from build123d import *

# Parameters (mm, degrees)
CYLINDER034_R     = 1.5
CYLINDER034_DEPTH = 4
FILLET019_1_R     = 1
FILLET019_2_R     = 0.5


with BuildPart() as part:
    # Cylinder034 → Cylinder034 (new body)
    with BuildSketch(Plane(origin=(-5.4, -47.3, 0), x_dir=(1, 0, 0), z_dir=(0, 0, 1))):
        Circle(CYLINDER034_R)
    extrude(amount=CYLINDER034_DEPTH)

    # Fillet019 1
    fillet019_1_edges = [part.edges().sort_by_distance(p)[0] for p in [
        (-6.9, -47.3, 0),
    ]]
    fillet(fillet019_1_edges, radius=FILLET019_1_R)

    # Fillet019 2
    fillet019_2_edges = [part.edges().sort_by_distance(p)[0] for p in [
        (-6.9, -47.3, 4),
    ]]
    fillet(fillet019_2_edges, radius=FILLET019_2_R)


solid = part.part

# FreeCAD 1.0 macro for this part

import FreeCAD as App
import Part
import Sketcher
Q = App.Units.Quantity


def edges_at(feature, points):
    """Names of the edges that pass closest to the given points."""
    edges = feature.Shape.Edges
    near = lambda p: min(range(len(edges)), key=lambda i: edges[i].distToShape(Part.Vertex(*p))[0])
    return sorted({f"Edge{near(p) + 1}" for p in points})

doc = App.newDocument("Part")
body = doc.addObject("PartDesign::Body", "Body")

# Sketch on XY plane
sketch1 = body.newObject("Sketcher::SketchObject", "Sketch")
sketch1.AttachmentSupport = (doc.getObject("XY_Plane"), [""])
sketch1.MapMode = "FlatFace"
sketch1.addGeometry(Part.Circle(App.Vector(-5.4, -47.3, 0), App.Vector(0, 0, 1), 1.5), False)
sketch1.addConstraint([
    Sketcher.Constraint("Diameter", 0, Q("3 mm")),
    Sketcher.Constraint("DistanceX", 0, 3, -1, 1, Q("5.4 mm")),
    Sketcher.Constraint("DistanceY", 0, 3, -1, 1, Q("47.3 mm")),
])
pad1 = body.newObject("PartDesign::Pad", "Pad")
pad1.Profile = sketch1
pad1.Length = 4
doc.recompute()

fillet = body.newObject("PartDesign::Fillet", "Fillet")
fillet.Base = (pad1, edges_at(pad1, [(-6.9, -47.3, 0)]))
fillet.Radius = 1
doc.recompute()

fillet2 = body.newObject("PartDesign::Fillet", "Fillet001")
fillet2.Base = (fillet, edges_at(fillet, [(-6.9, -47.3, 4)]))
fillet2.Radius = 0.5

doc.recompute()
